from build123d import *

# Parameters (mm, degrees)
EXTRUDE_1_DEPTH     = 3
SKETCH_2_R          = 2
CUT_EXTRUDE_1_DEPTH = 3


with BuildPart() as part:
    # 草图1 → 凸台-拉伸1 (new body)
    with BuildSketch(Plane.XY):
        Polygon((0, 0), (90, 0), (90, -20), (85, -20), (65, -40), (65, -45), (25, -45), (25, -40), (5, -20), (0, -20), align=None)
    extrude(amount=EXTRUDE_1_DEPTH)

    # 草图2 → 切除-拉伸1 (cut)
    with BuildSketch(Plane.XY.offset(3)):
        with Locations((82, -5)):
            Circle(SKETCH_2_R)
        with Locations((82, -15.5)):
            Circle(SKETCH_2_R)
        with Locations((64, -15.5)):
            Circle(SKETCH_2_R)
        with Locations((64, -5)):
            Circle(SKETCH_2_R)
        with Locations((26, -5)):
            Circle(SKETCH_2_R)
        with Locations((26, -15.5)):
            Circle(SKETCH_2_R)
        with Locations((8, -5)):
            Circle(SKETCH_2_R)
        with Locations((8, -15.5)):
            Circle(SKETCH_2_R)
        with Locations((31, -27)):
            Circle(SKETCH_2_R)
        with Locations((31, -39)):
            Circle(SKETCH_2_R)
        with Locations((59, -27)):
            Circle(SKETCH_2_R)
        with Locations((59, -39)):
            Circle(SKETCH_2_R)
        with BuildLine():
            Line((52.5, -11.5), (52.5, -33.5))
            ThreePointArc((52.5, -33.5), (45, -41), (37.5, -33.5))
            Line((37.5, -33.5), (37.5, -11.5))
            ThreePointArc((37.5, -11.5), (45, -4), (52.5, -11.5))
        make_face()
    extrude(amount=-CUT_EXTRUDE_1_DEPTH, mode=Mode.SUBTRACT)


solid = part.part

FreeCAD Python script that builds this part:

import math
import FreeCAD as App
import Part
import Sketcher
from FreeCAD import Vector

doc = App.newDocument("Part")
params = doc.addObject("Spreadsheet::Sheet", "Params")
for row, (alias, value) in enumerate([
    ("sketch1_width", "90 mm"),
    ("sketch1_width2", "5 mm"),
    ("sketch1_width3", "40 mm"),
    ("sketch1_height", "20 mm"),
    ("pad1_length", "3 mm"),
    ("sketch2_diameter", "4 mm"),
    ("sketch2_radius", "7.5 mm"),
    ("sketch2_height", "22 mm"),
    ("pocket1_length", "3 mm"),
], start=1):
    params.set(f"A{row}", alias)
    params.set(f"B{row}", "=" + value)
    params.setAlias(f"B{row}", alias)

body = doc.addObject("PartDesign::Body", "Body")

sketch1 = doc.addObject("Sketcher::SketchObject", "Sketch")
body.addObject(sketch1)
sketch1.AttachmentSupport = (doc.XY_Plane, [""])
sketch1.MapMode = "FlatFace"
sketch1.addGeometry([
    Part.LineSegment(Vector(90, 0, 0), Vector(0, 0, 0)),
    Part.LineSegment(Vector(0, 0, 0), Vector(0, -20, 0)),
    Part.LineSegment(Vector(0, -20, 0), Vector(5, -20, 0)),
    Part.LineSegment(Vector(5, -20, 0), Vector(25, -40, 0)),
    Part.LineSegment(Vector(25, -40, 0), Vector(25, -45, 0)),
    Part.LineSegment(Vector(25, -45, 0), Vector(65, -45, 0)),
    Part.LineSegment(Vector(65, -45, 0), Vector(65, -40, 0)),
    Part.LineSegment(Vector(65, -40, 0), Vector(85, -20, 0)),
    Part.LineSegment(Vector(85, -20, 0), Vector(90, -20, 0)),
    Part.LineSegment(Vector(90, -20, 0), Vector(90, 0, 0)),
], False)
sketch1.addConstraint([
    Sketcher.Constraint("Coincident", 0, 2, 1, 1),
    Sketcher.Constraint("Coincident", 1, 2, 2, 1),
    Sketcher.Constraint("Coincident", 2, 2, 3, 1),
    Sketcher.Constraint("Coincident", 3, 2, 4, 1),
    Sketcher.Constraint("Coincident", 4, 2, 5, 1),
    Sketcher.Constraint("Coincident", 5, 2, 6, 1),
    Sketcher.Constraint("Coincident", 6, 2, 7, 1),
    Sketcher.Constraint("Coincident", 7, 2, 8, 1),
    Sketcher.Constraint("Coincident", 8, 2, 9, 1),
    Sketcher.Constraint("Coincident", 9, 2, 0, 1),
    Sketcher.Constraint("Horizontal", 0),
    Sketcher.Constraint("Vertical", 1),
    Sketcher.Constraint("Horizontal", 2),
    Sketcher.Constraint("Vertical", 4),
    Sketcher.Constraint("Horizontal", 5),
    Sketcher.Constraint("Vertical", 6),
    Sketcher.Constraint("Horizontal", 8),
    Sketcher.Constraint("Vertical", 9),
    Sketcher.Constraint("Coincident", 0, 2, -1, 1),
    Sketcher.Constraint("Perpendicular", 3, 7),
    Sketcher.Constraint("Horizontal", 3, 2, 6, 2),
    Sketcher.Constraint("Horizontal", 2, 2, 7, 2),
    Sketcher.Constraint("Equal", 2, 8),
    Sketcher.Constraint("Equal", 8, 4),
    Sketcher.Constraint("Equal", 3, 7),
    Sketcher.Constraint("DistanceX", 0, 2, 0, 1, 90.0),
    Sketcher.Constraint("DistanceX", 2, 1, 2, 2, 5.0),
    Sketcher.Constraint("DistanceX", 5, 1, 5, 2, 40.0),
    Sketcher.Constraint("DistanceY", 1, 2, 1, 1, 20.0),
])
sketch1.setExpression("Constraints[25]", "Params.sketch1_width")
sketch1.setExpression("Constraints[26]", "Params.sketch1_width2")
sketch1.setExpression("Constraints[27]", "Params.sketch1_width3")
sketch1.setExpression("Constraints[28]", "Params.sketch1_height")
pad1 = doc.addObject("PartDesign::Pad", "Pad")
body.addObject(pad1)
pad1.Profile = sketch1
pad1.setExpression("Length", "Params.pad1_length")

sketch2 = doc.addObject("Sketcher::SketchObject", "Sketch001")
body.addObject(sketch2)
sketch2.AttachmentSupport = (doc.XY_Plane, [""])
sketch2.MapMode = "FlatFace"
sketch2.AttachmentOffset = App.Placement(Vector(0, 0, 3), App.Rotation())
sketch2.addGeometry([
    Part.Circle(Vector(82, -5, 0), Vector(0, 0, 1), 2),
    Part.Circle(Vector(82, -15.5, 0), Vector(0, 0, 1), 2),
    Part.Circle(Vector(64, -15.5, 0), Vector(0, 0, 1), 2),
    Part.Circle(Vector(64, -5, 0), Vector(0, 0, 1), 2),
    Part.Circle(Vector(26, -5, 0), Vector(0, 0, 1), 2),
    Part.Circle(Vector(26, -15.5, 0), Vector(0, 0, 1), 2),
    Part.Circle(Vector(8, -5, 0), Vector(0, 0, 1), 2),
    Part.Circle(Vector(8, -15.5, 0), Vector(0, 0, 1), 2),
    Part.Circle(Vector(31, -27, 0), Vector(0, 0, 1), 2),
    Part.Circle(Vector(31, -39, 0), Vector(0, 0, 1), 2),
    Part.Circle(Vector(59, -27, 0), Vector(0, 0, 1), 2),
    Part.Circle(Vector(59, -39, 0), Vector(0, 0, 1), 2),
    Part.LineSegment(Vector(52.5, -33.5, 0), Vector(52.5, -11.5, 0)),
    Part.ArcOfCircle(Part.Circle(Vector(45, -11.5, 0), Vector(0, 0, 1), 7.5), math.radians(0), math.radians(180)),
    Part.LineSegment(Vector(37.5, -11.5, 0), Vector(37.5, -33.5, 0)),
    Part.ArcOfCircle(Part.Circle(Vector(45, -33.5, 0), Vector(0, 0, 1), 7.5), math.radians(180), math.radians(360)),
], False)
sketch2.addConstraint([
    Sketcher.Constraint("Tangent", 12, 2, 13, 1),
    Sketcher.Constraint("Tangent", 13, 2, 14, 1),
    Sketcher.Constraint("Tangent", 14, 2, 15, 1),
    Sketcher.Constraint("Tangent", 15, 2, 12, 1),
    Sketcher.Constraint("Vertical", 12),
    Sketcher.Constraint("Vertical", 14),
    Sketcher.Constraint("Equal", 0, 1),
    Sketcher.Constraint("Equal", 1, 2),
    Sketcher.Constraint("Equal", 2, 3),
    Sketcher.Constraint("Equal", 3, 4),
    Sketcher.Constraint("Equal", 4, 5),
    Sketcher.Constraint("Equal", 5, 6),
    Sketcher.Constraint("Equal", 6, 7),
    Sketcher.Constraint("Equal", 7, 8),
    Sketcher.Constraint("Equal", 8, 9),
    Sketcher.Constraint("Equal", 9, 10),
    Sketcher.Constraint("Equal", 10, 11),
    Sketcher.Constraint("Horizontal", 1, 3, 2, 3),
    Sketcher.Constraint("Horizontal", 0, 3, 3, 3),
    Sketcher.Constraint("Horizontal", 3, 3, 4, 3),
    Sketcher.Constraint("Horizontal", 2, 3, 5, 3),
    Sketcher.Constraint("Horizontal", 4, 3, 6, 3),
    Sketcher.Constraint("Horizontal", 5, 3, 7, 3),
    Sketcher.Constraint("Horizontal", 8, 3, 10, 3),
    Sketcher.Constraint("Horizontal", 9, 3, 11, 3),
    Sketcher.Constraint("Vertical", 0, 3, 1, 3),
    Sketcher.Constraint("Vertical", 2, 3, 3, 3),
    Sketcher.Constraint("Vertical", 4, 3, 5, 3),
    Sketcher.Constraint("Vertical", 6, 3, 7, 3),
    Sketcher.Constraint("Vertical", 8, 3, 9, 3),
    Sketcher.Constraint("Vertical", 10, 3, 11, 3),
    Sketcher.Constraint("Diameter", 0, 4.0),
    Sketcher.Constraint("Radius", 13, 7.5),
    Sketcher.Constraint("DistanceY", 12, 1, 12, 2, 22.0),
    Sketcher.Constraint("DistanceX", -1, 1, 0, 3, 82.0),
    Sketcher.Constraint("DistanceY", 0, 3, -1, 1, 5.0),
    Sketcher.Constraint("DistanceX", -1, 1, 2, 3, 64.0),
    Sketcher.Constraint("DistanceX", -1, 1, 4, 3, 26.0),
    Sketcher.Constraint("DistanceX", -1, 1, 6, 3, 8.0),
    Sketcher.Constraint("DistanceX", -1, 1, 8, 3, 31.0),
    Sketcher.Constraint("DistanceY", 8, 3, -1, 1, 27.0),
    Sketcher.Constraint("DistanceY", 9, 3, -1, 1, 39.0),
    Sketcher.Constraint("DistanceX", -1, 1, 10, 3, 59.0),
    Sketcher.Constraint("DistanceX", -1, 1, 13, 3, 45.0),
    Sketcher.Constraint("DistanceY", 2, 3, 13, 3, 4.0),
    Sketcher.Constraint("DistanceY", 1, 3, -1, 1, 15.5),
])
sketch2.setExpression("Constraints[31]", "Params.sketch2_diameter")
sketch2.setExpression("Constraints[32]", "Params.sketch2_radius")
sketch2.setExpression("Constraints[33]", "Params.sketch2_height")
pocket1 = doc.addObject("PartDesign::Pocket", "Pocket")
body.addObject(pocket1)
pocket1.Profile = sketch2
pocket1.setExpression("Length", "Params.pocket1_length")

doc.recompute()
